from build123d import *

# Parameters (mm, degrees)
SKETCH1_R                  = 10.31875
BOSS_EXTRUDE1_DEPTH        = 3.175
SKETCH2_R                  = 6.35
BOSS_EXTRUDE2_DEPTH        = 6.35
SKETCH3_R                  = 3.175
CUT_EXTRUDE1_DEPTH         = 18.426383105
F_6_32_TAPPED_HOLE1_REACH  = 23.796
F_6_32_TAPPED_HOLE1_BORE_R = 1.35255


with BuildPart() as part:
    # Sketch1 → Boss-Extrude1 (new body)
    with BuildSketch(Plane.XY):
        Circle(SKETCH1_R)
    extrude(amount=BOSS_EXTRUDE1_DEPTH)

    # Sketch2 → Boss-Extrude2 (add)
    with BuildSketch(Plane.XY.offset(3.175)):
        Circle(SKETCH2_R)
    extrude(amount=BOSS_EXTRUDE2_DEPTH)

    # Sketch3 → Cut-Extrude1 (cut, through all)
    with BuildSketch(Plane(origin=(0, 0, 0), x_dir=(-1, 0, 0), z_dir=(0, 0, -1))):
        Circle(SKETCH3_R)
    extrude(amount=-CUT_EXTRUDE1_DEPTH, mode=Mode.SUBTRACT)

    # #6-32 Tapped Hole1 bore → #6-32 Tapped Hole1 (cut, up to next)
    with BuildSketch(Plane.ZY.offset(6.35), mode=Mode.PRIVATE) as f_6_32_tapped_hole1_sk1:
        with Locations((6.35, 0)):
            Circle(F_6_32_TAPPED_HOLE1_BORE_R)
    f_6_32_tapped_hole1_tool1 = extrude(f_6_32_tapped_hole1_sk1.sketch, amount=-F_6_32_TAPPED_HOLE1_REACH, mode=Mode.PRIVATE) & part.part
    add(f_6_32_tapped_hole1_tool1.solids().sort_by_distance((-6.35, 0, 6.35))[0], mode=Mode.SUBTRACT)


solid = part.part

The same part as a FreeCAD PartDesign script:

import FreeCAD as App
import Part
import Sketcher

V = App.Vector
Q = App.Units.Quantity

doc = App.newDocument("Part")
params = doc.addObject("Spreadsheet::Sheet", "Params")
for row, (alias, value) in enumerate([
    ("sketch1_diameter", "0.8125 in"),
    ("pad1_length", "0.125 in"),
    ("sketch2_diameter", "0.5 in"),
    ("pad2_length", "0.25 in"),
    ("sketch3_diameter", "0.25 in"),
], start=1):
    params.set(f"A{row}", alias)
    params.set(f"B{row}", "=" + value)
    params.setAlias(f"B{row}", alias)

body = doc.addObject("PartDesign::Body", "Body")

sketch1 = doc.addObject("Sketcher::SketchObject", "Sketch")
body.addObject(sketch1)
sketch1.AttachmentSupport = (doc.XY_Plane, [""])
sketch1.MapMode = "FlatFace"
sketch1.addGeometry(Part.Circle(V(0, 0, 0), V(0, 0, 1), 10), False)
sketch1.addConstraint([
    Sketcher.Constraint("Coincident", 0, 3, -1, 1),
    Sketcher.Constraint("Diameter", 0, Q("0.8125 in")),
])
sketch1.setExpression("Constraints[1]", "Params.sketch1_diameter")
pad1 = doc.addObject("PartDesign::Pad", "Pad")
body.addObject(pad1)
pad1.Profile = sketch1
pad1.setExpression("Length", "Params.pad1_length")

sketch2 = doc.addObject("Sketcher::SketchObject", "Sketch001")
body.addObject(sketch2)
sketch2.AttachmentSupport = (doc.XY_Plane, [""])
sketch2.MapMode = "FlatFace"
sketch2.AttachmentOffset = App.Placement(V(0, 0, 0.125 * 25.4), App.Rotation())
sketch2.addGeometry(Part.Circle(V(0, 0, 0), V(0, 0, 1), 6), False)
sketch2.addConstraint([
    Sketcher.Constraint("Coincident", 0, 3, -1, 1),
    Sketcher.Constraint("Diameter", 0, Q("0.5 in")),
])
sketch2.setExpression("Constraints[1]", "Params.sketch2_diameter")
pad2 = doc.addObject("PartDesign::Pad", "Pad001")
body.addObject(pad2)
pad2.Profile = sketch2
pad2.setExpression("Length", "Params.pad2_length")

sketch3 = doc.addObject("Sketcher::SketchObject", "Sketch002")
body.addObject(sketch3)
sketch3.AttachmentSupport = (doc.XY_Plane, [""])
sketch3.MapMode = "FlatFace"
sketch3.addGeometry(Part.Circle(V(0, 0, 0), V(0, 0, 1), 3.2), False)
sketch3.addConstraint([
    Sketcher.Constraint("Coincident", 0, 3, -1, 1),
    Sketcher.Constraint("Diameter", 0, Q("0.25 in")),
])
sketch3.setExpression("Constraints[1]", "Params.sketch3_diameter")
pocket1 = doc.addObject("PartDesign::Pocket", "Pocket")
body.addObject(pocket1)
pocket1.Profile = sketch3
pocket1.Type = "ThroughAll"
pocket1.Reversed = True

sketch4 = doc.addObject("Sketcher::SketchObject", "Sketch003")
body.addObject(sketch4)
sketch4.AttachmentSupport = (doc.YZ_Plane, [""])
sketch4.MapMode = "FlatFace"
sketch4.AttachmentOffset = App.Placement(V(0, 0, -0.25 * 25.4), App.Rotation())
sketch4.addGeometry(Part.Circle(V(0, 6.3, 0), V(0, 0, 1), 1.4), False)
sketch4.addConstraint([
    Sketcher.Constraint("PointOnObject", 0, 3, -2),
    Sketcher.Constraint("Diameter", 0, Q("0.1065 in")),
    Sketcher.Constraint("DistanceY", -1, 1, 0, 3, Q("0.25 in")),
])
pocket2 = doc.addObject("PartDesign::Pocket", "Pocket001")
body.addObject(pocket2)
pocket2.Profile = sketch4
pocket2.Type = "UpToFirst"
pocket2.Reversed = True

doc.recompute()
